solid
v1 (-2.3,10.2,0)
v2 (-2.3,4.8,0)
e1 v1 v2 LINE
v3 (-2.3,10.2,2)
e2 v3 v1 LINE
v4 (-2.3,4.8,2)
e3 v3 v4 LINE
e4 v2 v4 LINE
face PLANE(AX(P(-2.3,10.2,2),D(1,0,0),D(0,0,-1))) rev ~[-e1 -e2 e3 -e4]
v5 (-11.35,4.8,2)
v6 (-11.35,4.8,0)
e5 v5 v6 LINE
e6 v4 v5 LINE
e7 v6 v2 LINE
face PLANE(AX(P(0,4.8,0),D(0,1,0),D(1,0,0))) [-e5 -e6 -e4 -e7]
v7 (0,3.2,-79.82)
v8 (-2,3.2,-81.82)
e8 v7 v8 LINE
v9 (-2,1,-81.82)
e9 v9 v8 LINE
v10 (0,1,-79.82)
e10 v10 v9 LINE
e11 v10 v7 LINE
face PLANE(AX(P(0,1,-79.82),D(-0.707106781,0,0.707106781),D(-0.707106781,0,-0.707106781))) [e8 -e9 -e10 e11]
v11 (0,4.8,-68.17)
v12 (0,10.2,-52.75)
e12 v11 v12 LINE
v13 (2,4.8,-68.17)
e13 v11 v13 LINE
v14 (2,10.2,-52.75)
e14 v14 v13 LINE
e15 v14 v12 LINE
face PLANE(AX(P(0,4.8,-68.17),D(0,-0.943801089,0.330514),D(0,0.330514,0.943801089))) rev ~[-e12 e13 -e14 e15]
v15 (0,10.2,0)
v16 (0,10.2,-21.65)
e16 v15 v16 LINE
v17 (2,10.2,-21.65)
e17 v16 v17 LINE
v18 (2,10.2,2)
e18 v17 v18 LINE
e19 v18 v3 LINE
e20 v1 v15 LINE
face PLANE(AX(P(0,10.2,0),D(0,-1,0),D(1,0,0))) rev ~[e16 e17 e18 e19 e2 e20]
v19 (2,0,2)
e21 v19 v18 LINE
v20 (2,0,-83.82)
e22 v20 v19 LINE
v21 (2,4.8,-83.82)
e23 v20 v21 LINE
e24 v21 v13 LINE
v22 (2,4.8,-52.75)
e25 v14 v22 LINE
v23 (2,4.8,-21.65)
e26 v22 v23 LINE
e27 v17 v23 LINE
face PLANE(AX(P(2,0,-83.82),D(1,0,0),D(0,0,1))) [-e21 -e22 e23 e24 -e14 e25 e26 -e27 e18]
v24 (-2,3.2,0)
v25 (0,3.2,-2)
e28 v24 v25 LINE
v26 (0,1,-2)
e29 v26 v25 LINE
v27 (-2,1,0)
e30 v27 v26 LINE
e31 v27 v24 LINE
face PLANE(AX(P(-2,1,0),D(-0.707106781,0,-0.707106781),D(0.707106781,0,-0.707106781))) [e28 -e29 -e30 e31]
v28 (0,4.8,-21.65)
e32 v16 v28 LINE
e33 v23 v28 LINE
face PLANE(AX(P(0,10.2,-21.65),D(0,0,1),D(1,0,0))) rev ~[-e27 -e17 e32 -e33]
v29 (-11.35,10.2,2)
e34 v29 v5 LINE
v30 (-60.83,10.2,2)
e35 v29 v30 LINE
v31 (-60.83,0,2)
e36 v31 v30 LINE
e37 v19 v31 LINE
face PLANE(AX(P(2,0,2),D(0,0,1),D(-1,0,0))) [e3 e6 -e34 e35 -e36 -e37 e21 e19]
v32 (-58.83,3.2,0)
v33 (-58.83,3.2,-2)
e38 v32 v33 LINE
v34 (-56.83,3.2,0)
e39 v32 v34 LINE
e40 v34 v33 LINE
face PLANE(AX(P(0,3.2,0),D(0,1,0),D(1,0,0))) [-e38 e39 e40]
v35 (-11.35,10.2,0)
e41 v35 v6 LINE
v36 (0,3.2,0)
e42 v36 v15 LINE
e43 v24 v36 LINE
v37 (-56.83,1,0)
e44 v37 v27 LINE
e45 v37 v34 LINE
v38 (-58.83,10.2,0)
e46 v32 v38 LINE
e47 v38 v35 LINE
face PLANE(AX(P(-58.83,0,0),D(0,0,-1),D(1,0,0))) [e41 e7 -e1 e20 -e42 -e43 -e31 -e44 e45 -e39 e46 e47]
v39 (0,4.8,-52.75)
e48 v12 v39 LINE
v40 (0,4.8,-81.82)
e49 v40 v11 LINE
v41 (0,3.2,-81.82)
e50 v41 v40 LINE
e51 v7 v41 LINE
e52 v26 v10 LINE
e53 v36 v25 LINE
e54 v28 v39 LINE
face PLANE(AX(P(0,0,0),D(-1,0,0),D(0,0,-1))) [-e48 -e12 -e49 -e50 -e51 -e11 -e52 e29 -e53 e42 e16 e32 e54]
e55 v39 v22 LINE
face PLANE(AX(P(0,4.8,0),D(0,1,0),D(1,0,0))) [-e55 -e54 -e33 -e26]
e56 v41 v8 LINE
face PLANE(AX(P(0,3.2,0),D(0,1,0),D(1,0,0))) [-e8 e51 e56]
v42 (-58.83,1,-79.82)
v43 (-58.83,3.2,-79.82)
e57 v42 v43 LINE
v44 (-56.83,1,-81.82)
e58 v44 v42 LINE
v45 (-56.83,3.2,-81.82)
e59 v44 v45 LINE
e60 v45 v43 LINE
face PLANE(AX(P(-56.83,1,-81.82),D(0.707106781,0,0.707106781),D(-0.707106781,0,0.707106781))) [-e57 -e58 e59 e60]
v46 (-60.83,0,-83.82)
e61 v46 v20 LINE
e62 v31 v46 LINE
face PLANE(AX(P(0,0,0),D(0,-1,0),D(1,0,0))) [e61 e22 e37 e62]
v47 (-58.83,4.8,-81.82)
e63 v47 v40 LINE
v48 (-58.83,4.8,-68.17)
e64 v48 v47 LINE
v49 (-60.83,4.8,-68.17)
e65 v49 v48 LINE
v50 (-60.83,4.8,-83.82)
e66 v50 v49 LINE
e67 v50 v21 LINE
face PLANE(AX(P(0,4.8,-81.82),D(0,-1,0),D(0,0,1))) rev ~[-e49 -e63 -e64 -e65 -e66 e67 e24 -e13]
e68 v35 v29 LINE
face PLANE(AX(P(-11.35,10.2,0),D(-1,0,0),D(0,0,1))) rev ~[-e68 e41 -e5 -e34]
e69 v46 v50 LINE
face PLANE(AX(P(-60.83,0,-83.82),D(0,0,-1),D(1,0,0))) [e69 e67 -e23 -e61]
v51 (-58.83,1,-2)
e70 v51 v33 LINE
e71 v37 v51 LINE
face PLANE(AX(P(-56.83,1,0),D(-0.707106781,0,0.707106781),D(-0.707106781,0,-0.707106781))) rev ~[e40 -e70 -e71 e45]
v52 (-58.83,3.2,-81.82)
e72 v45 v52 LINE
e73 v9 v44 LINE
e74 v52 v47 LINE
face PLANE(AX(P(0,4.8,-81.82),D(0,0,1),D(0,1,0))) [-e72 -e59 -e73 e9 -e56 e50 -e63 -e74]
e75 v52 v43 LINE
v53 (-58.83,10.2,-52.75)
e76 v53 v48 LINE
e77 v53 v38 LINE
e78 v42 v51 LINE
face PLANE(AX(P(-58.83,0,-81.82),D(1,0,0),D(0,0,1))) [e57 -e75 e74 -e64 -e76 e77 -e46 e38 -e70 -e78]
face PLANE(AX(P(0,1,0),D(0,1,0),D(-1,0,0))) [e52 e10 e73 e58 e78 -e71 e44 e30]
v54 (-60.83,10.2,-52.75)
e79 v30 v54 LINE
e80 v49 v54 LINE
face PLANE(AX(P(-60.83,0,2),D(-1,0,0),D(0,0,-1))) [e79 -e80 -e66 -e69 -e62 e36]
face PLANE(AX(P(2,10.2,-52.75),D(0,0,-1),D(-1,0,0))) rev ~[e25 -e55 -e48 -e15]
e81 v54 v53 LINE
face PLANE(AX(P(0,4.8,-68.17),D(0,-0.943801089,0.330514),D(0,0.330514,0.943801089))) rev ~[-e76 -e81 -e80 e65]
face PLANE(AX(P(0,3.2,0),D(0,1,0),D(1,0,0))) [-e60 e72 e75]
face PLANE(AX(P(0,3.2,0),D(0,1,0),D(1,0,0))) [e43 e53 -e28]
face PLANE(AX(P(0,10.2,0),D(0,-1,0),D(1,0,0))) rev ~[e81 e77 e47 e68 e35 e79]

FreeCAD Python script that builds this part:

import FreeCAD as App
import Part
import Sketcher

V = App.Vector
Q = App.Units.Quantity


def add_polygon(sketch, points):
    """Adds a closed chain of lines whose ends are joined by coincident constraints."""
    first, n = sketch.GeometryCount, len(points)
    for a, b in zip(points, points[1:] + points[:1]):
        sketch.addGeometry(Part.LineSegment(App.Vector(*a, 0), App.Vector(*b, 0)), False)
    for i in range(n):
        sketch.addConstraint(Sketcher.Constraint("Coincident", first + i, 2, first + (i + 1) % n, 1))

doc = App.newDocument("Part")
params = doc.addObject("Spreadsheet::Sheet", "Params")
for row, (alias, value) in enumerate([
    ("sketch1_width", "58.83 mm"),
    ("sketch1_height", "81.82 mm"),
    ("pad1_length", "1 mm"),
    ("sketch2_width", "2 mm"),
    ("pad2_length", "2.2 mm"),
    ("sketch3_width", "62.83 mm"),
    ("sketch3_height", "85.82 mm"),
    ("pad3_length", "10.2 mm"),
    ("sketch4_width", "9.05 mm"),
    ("sketch4_height", "2 mm"),
    ("pocket1_length", "7 mm"),
    ("sketch5_height", "31.1 mm"),
    ("sketch5_width", "2 mm"),
    ("pocket2_length", "7 mm"),
    ("sketch6_height", "13.65 mm"),
    ("sketch6_width", "5.4 mm"),
    ("sketch7_height", "2 mm"),
    ("sketch7_width", "5.4 mm"),
    ("pocket4_length", "63 mm"),
    ("sketch8_width", "2 mm"),
    ("sketch8_height", "31.1 mm"),
    ("sketch8_width2", "9.05 mm"),
    ("pad4_length", "1.6 mm"),
], start=1):
    params.set(f"A{row}", alias)
    params.set(f"B{row}", "=" + value)
    params.setAlias(f"B{row}", alias)

body = doc.addObject("PartDesign::Body", "Body")

# Sketch on XZ plane
sketch1 = body.newObject("Sketcher::SketchObject", "Sketch")
sketch1.AttachmentSupport = (doc.getObject("XZ_Plane"), [""])
sketch1.MapMode = "FlatFace"
add_polygon(sketch1, [(-58.83, -81.82), (-58.83, 0), (0, 0), (0, -81.82)])  # lines 0-3
sketch1.addConstraint([
    Sketcher.Constraint("Vertical", 0),
    Sketcher.Constraint("Horizontal", 1),
    Sketcher.Constraint("Vertical", 2),
    Sketcher.Constraint("Horizontal", 3),
    Sketcher.Constraint("Coincident", 1, 2, -1, 1),
    Sketcher.Constraint("DistanceX", 1, 1, 1, 2, 58.83),
    Sketcher.Constraint("DistanceY", 0, 1, 0, 2, 81.82),
])
sketch1.setExpression("Constraints[9]", "Params.sketch1_width")
sketch1.setExpression("Constraints[10]", "Params.sketch1_height")
pad1 = body.newObject("PartDesign::Pad", "Pad")
pad1.Profile = sketch1
pad1.setExpression("Length", "Params.pad1_length")
pad1.Reversed = True

# Sketch on XZ plane
sketch2 = body.newObject("Sketcher::SketchObject", "Sketch001")
sketch2.AttachmentSupport = (doc.getObject("XZ_Plane"), [""])
sketch2.MapMode = "FlatFace"
sketch2.AttachmentOffset = App.Placement(V(0, 0, -1), App.Rotation())
add_polygon(sketch2, [(-58.83, 0), (-56.83, 0), (-58.83, -2)])  # lines 0-2
add_polygon(sketch2, [(-58.83, -81.82), (-58.83, -79.82), (-56.83, -81.82)])  # lines 3-5
add_polygon(sketch2, [(0, -2), (-2, 0), (0, 0)])  # lines 6-8
add_polygon(sketch2, [(-2, -81.82), (0, -79.82), (0, -81.82)])  # lines 9-11
sketch2.addConstraint([
    Sketcher.Constraint("Horizontal", 0),
    Sketcher.Constraint("Vertical", 2),
    Sketcher.Constraint("Vertical", 3),
    Sketcher.Constraint("Horizontal", 5),
    Sketcher.Constraint("Horizontal", 7),
    Sketcher.Constraint("Vertical", 8),
    Sketcher.Constraint("Vertical", 10),
    Sketcher.Constraint("Horizontal", 11),
    Sketcher.Constraint("Coincident", 7, 2, -1, 1),
    Sketcher.Constraint("PointOnObject", 0, 2, -1),
    Sketcher.Constraint("PointOnObject", 9, 2, -2),
    Sketcher.Constraint("Perpendicular", 1, 4),
    Sketcher.Constraint("Parallel", 4, 6),
    Sketcher.Constraint("Perpendicular", 6, 9),
    Sketcher.Constraint("Horizontal", 1, 2, 8, 2),
    Sketcher.Constraint("Horizontal", 3, 2, 9, 2),
    Sketcher.Constraint("Horizontal", 5, 2, 10, 2),
    Sketcher.Constraint("Vertical", 2, 2, 3, 2),
    Sketcher.Constraint("Vertical", 0, 2, 4, 2),
    Sketcher.Constraint("Vertical", 6, 2, 11, 2),
    Sketcher.Constraint("DistanceX", 0, 1, 0, 2, 2.0),
    Sketcher.Constraint("DistanceX", 0, 2, -1, 1, 56.83),
    Sketcher.Constraint("DistanceY", 3, 2, -1, 1, 79.82),
])
sketch2.setExpression("Constraints[32]", "Params.sketch2_width")
pad2 = body.newObject("PartDesign::Pad", "Pad001")
pad2.Profile = sketch2
pad2.setExpression("Length", "Params.pad2_length")
pad2.Reversed = True

# Sketch on XZ plane
sketch3 = body.newObject("Sketcher::SketchObject", "Sketch002")
sketch3.AttachmentSupport = (doc.getObject("XZ_Plane"), [""])
sketch3.MapMode = "FlatFace"
add_polygon(sketch3, [(2, -83.82), (2, 2), (-60.83, 2), (-60.83, -83.82)])  # lines 0-3
add_polygon(sketch3, [(-58.83, -81.82), (-58.83, 0), (0, 0), (0, -81.82)])  # lines 4-7
sketch3.addConstraint([
    Sketcher.Constraint("Vertical", 0),
    Sketcher.Constraint("Horizontal", 1),
    Sketcher.Constraint("Vertical", 2),
    Sketcher.Constraint("Horizontal", 3),
    Sketcher.Constraint("Vertical", 4),
    Sketcher.Constraint("Horizontal", 5),
    Sketcher.Constraint("Vertical", 6),
    Sketcher.Constraint("Horizontal", 7),
    Sketcher.Constraint("Coincident", 5, 2, -1, 1),
    Sketcher.Constraint("DistanceX", -1, 1, 0, 2, 2.0),
    Sketcher.Constraint("DistanceY", -1, 1, 0, 2, 2.0),
    Sketcher.Constraint("DistanceX", 1, 2, 4, 2, 2.0),
    Sketcher.Constraint("DistanceY", 3, 2, 6, 2, 2.0),
    Sketcher.Constraint("DistanceX", 1, 2, 1, 1, 62.83),
    Sketcher.Constraint("DistanceY", 0, 1, 0, 2, 85.82),
])
sketch3.setExpression("Constraints[21]", "Params.sketch3_width")
sketch3.setExpression("Constraints[22]", "Params.sketch3_height")
pad3 = body.newObject("PartDesign::Pad", "Pad002")
pad3.Profile = sketch3
pad3.setExpression("Length", "Params.pad3_length")
pad3.Reversed = True

# Sketch on XZ plane
sketch4 = body.newObject("Sketcher::SketchObject", "Sketch003")
sketch4.AttachmentSupport = (doc.getObject("XZ_Plane"), [""])
sketch4.MapMode = "FlatFace"
sketch4.AttachmentOffset = App.Placement(V(0, 0, -10.2), App.Rotation())
add_polygon(sketch4, [(-2.3, 0), (-11.35, 0), (-11.35, 2), (-2.3, 2)])  # lines 0-3
sketch4.addConstraint([
    Sketcher.Constraint("Horizontal", 0),
    Sketcher.Constraint("Vertical", 1),
    Sketcher.Constraint("Horizontal", 2),
    Sketcher.Constraint("Vertical", 3),
    Sketcher.Constraint("PointOnObject", 0, 2, -1),
    Sketcher.Constraint("DistanceX", 0, 2, 0, 1, 9.05),
    Sketcher.Constraint("DistanceX", 2, 2, -1, 1, 2.3),
    Sketcher.Constraint("DistanceY", 1, 1, 1, 2, 2.0),
])
sketch4.setExpression("Constraints[9]", "Params.sketch4_width")
sketch4.setExpression("Constraints[11]", "Params.sketch4_height")
pocket1 = body.newObject("PartDesign::Pocket", "Pocket")
pocket1.Profile = sketch4
pocket1.setExpression("Length", "Params.pocket1_length")
pocket1.Reversed = True

# Sketch on XZ plane
sketch5 = body.newObject("Sketcher::SketchObject", "Sketch004")
sketch5.AttachmentSupport = (doc.getObject("XZ_Plane"), [""])
sketch5.MapMode = "FlatFace"
sketch5.AttachmentOffset = App.Placement(V(0, 0, -10.2), App.Rotation())
add_polygon(sketch5, [(2, -52.75), (0, -52.75), (0, -21.65), (2, -21.65)])  # lines 0-3
sketch5.addConstraint([
    Sketcher.Constraint("Horizontal", 0),
    Sketcher.Constraint("Vertical", 1),
    Sketcher.Constraint("Horizontal", 2),
    Sketcher.Constraint("Vertical", 3),
    Sketcher.Constraint("PointOnObject", 0, 2, -2),
    Sketcher.Constraint("DistanceY", 1, 1, 1, 2, 31.1),
    Sketcher.Constraint("DistanceX", 0, 2, 0, 1, 2.0),
    Sketcher.Constraint("DistanceY", 1, 2, -1, 1, 21.65),
])
sketch5.setExpression("Constraints[9]", "Params.sketch5_height")
sketch5.setExpression("Constraints[10]", "Params.sketch5_width")
pocket2 = body.newObject("PartDesign::Pocket", "Pocket001")
pocket2.Profile = sketch5
pocket2.setExpression("Length", "Params.pocket2_length")
pocket2.Reversed = True

# Sketch on YZ plane
sketch6 = body.newObject("Sketcher::SketchObject", "Sketch005")
sketch6.AttachmentSupport = (doc.getObject("YZ_Plane"), [""])
sketch6.MapMode = "FlatFace"
add_polygon(sketch6, [(10.2, -52.75), (10.2, -81.82), (4.8, -81.82), (4.8, -68.17)])  # lines 0-3
sketch6.addConstraint([
    Sketcher.Constraint("Vertical", 0),
    Sketcher.Constraint("Horizontal", 1),
    Sketcher.Constraint("Vertical", 2),
    Sketcher.Constraint("DistanceY", 2, 1, 2, 2, 13.65),
    Sketcher.Constraint("DistanceX", 1, 2, 1, 1, 5.4),
    Sketcher.Constraint("Angle", 3, Q("70.7 deg")),
    Sketcher.Constraint("DistanceX", -1, 1, 0, 2, 10.2),
    Sketcher.Constraint("DistanceY", 0, 2, -1, 1, 81.82),
])
sketch6.setExpression("Constraints[7]", "Params.sketch6_height")
sketch6.setExpression("Constraints[8]", "Params.sketch6_width")
pocket3 = body.newObject("PartDesign::Pocket", "Pocket002")
pocket3.Profile = sketch6
pocket3.Type = "ThroughAll"
pocket3.Midplane = True

# Sketch on YZ plane
sketch7 = body.newObject("Sketcher::SketchObject", "Sketch006")
sketch7.AttachmentSupport = (doc.getObject("YZ_Plane"), [""])
sketch7.MapMode = "FlatFace"
sketch7.AttachmentOffset = App.Placement(V(0, 0, -60.83), App.Rotation())
add_polygon(sketch7, [(4.8, -83.82), (4.8, -81.82), (10.2, -81.82), (10.2, -83.82)])  # lines 0-3
sketch7.addConstraint([
    Sketcher.Constraint("Vertical", 0),
    Sketcher.Constraint("Horizontal", 1),
    Sketcher.Constraint("Vertical", 2),
    Sketcher.Constraint("Horizontal", 3),
    Sketcher.Constraint("DistanceY", 0, 1, 0, 2, 2.0),
    Sketcher.Constraint("DistanceX", 1, 1, 1, 2, 5.4),
    Sketcher.Constraint("DistanceX", -1, 1, 0, 2, 4.8),
    Sketcher.Constraint("DistanceY", 0, 2, -1, 1, 81.82),
])
sketch7.setExpression("Constraints[8]", "Params.sketch7_height")
sketch7.setExpression("Constraints[9]", "Params.sketch7_width")
pocket4 = body.newObject("PartDesign::Pocket", "Pocket003")
pocket4.Profile = sketch7
pocket4.setExpression("Length", "Params.pocket4_length")
pocket4.Reversed = True

# Sketch on XZ plane
sketch8 = body.newObject("Sketcher::SketchObject", "Sketch007")
sketch8.AttachmentSupport = (doc.getObject("XZ_Plane"), [""])
sketch8.MapMode = "FlatFace"
sketch8.AttachmentOffset = App.Placement(V(0, 0, -3.2), App.Rotation())
add_polygon(sketch8, [(-2.3, 0), (-11.35, 0), (-11.35, 2), (-2.3, 2)])  # lines 0-3
add_polygon(sketch8, [(0, -21.65), (2, -21.65), (2, -52.75), (0, -52.75)])  # lines 4-7
sketch8.addConstraint([
    Sketcher.Constraint("Horizontal", 0),
    Sketcher.Constraint("Vertical", 1),
    Sketcher.Constraint("Horizontal", 2),
    Sketcher.Constraint("Vertical", 3),
    Sketcher.Constraint("Horizontal", 4),
    Sketcher.Constraint("Vertical", 5),
    Sketcher.Constraint("Horizontal", 6),
    Sketcher.Constraint("Vertical", 7),
    Sketcher.Constraint("PointOnObject", 0, 2, -1),
    Sketcher.Constraint("PointOnObject", 6, 2, -2),
    Sketcher.Constraint("Equal", 6, 1),
    Sketcher.Constraint("DistanceX", 4, 1, 4, 2, 2.0),
    Sketcher.Constraint("DistanceY", 5, 2, 5, 1, 31.1),
    Sketcher.Constraint("DistanceX", 0, 2, 0, 1, 9.05),
    Sketcher.Constraint("DistanceX", 2, 2, -1, 1, 2.3),
    Sketcher.Constraint("DistanceY", 4, 2, -1, 1, 21.65),
])
sketch8.setExpression("Constraints[19]", "Params.sketch8_width")
sketch8.setExpression("Constraints[20]", "Params.sketch8_height")
sketch8.setExpression("Constraints[21]", "Params.sketch8_width2")
pad4 = body.newObject("PartDesign::Pad", "Pad003")
pad4.Profile = sketch8
pad4.setExpression("Length", "Params.pad4_length")
pad4.Reversed = True

doc.recompute()
